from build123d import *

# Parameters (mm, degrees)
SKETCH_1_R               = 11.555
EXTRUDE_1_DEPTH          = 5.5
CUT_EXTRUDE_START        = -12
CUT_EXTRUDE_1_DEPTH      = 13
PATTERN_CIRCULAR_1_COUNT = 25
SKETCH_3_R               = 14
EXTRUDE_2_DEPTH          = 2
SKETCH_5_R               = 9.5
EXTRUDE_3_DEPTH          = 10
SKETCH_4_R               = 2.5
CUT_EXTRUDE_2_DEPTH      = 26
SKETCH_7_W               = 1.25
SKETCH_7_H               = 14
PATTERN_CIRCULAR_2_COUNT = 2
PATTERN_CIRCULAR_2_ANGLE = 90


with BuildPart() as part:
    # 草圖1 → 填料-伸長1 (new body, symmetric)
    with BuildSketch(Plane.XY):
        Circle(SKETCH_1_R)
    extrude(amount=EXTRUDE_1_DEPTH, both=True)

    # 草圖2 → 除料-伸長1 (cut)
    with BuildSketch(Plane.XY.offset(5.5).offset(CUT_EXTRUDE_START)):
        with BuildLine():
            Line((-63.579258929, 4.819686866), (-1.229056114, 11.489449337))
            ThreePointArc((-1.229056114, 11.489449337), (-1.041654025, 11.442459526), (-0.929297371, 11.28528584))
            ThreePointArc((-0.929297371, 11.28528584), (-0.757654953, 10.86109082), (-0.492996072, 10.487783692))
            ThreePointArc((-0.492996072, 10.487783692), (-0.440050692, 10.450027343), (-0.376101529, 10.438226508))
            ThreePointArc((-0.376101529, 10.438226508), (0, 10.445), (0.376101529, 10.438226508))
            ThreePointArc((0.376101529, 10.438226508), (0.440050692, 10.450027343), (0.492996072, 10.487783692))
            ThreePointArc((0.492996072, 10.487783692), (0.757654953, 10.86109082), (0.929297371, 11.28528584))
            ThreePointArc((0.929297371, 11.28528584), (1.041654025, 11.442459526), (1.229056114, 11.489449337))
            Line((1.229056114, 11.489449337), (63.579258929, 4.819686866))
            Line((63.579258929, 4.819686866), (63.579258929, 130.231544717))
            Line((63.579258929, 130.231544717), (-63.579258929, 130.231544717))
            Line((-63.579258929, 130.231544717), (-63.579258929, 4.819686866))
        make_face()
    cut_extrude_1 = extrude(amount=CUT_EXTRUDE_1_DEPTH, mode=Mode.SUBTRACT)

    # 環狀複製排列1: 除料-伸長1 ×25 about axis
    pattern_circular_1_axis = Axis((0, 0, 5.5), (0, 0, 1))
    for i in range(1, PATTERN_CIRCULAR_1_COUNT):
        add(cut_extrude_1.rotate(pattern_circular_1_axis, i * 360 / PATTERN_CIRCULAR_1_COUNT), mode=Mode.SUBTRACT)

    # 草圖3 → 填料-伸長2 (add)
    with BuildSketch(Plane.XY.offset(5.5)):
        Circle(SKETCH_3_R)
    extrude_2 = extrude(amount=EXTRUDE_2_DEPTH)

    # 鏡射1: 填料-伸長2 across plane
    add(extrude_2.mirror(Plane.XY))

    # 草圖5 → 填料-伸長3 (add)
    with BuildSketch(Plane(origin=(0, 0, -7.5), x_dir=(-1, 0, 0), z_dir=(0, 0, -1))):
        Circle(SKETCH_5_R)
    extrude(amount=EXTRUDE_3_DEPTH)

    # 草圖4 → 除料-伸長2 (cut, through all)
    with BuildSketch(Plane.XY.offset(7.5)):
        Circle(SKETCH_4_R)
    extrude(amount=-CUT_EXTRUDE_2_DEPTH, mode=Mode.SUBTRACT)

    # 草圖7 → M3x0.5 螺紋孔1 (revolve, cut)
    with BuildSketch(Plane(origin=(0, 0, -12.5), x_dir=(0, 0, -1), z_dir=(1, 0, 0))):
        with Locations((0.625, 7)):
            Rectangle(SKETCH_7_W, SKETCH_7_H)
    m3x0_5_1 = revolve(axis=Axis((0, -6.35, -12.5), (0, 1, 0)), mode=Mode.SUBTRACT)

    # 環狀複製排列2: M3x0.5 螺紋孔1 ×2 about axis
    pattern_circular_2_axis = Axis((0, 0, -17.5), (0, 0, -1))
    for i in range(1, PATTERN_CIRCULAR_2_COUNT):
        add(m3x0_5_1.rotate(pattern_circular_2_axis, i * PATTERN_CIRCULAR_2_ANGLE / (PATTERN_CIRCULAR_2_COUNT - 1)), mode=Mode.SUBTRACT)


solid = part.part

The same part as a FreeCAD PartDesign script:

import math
import FreeCAD as App
import Part
import Sketcher

V = App.Vector
Q = App.Units.Quantity

doc = App.newDocument("Part")
body = doc.addObject("PartDesign::Body", "Body")

# Sketch on XY plane
sketch1 = body.newObject("Sketcher::SketchObject", "Sketch")
sketch1.AttachmentSupport = (doc.getObject("XY_Plane"), [""])
sketch1.MapMode = "FlatFace"
sketch1.addGeometry(Part.Circle(V(0, 0, 0), V(0, 0, 1), 11.555), False)
sketch1.addConstraint([
    Sketcher.Constraint("Coincident", 0, 3, -1, 1),
    Sketcher.Constraint("Diameter", 0, Q("23.11 mm")),
])
pad1 = body.newObject("PartDesign::Pad", "Pad")
pad1.Profile = sketch1
pad1.Length = 11
pad1.Midplane = True

# Sketch on XY plane
sketch2 = body.newObject("Sketcher::SketchObject", "Sketch001")
sketch2.AttachmentSupport = (doc.getObject("XY_Plane"), [""])
sketch2.MapMode = "FlatFace"
sketch2.AttachmentOffset = App.Placement(V(0, 0, -6.5), App.Rotation())
sketch2.addGeometry([
    Part.LineSegment(V(-63.579259, 4.819687, 0), V(-1.229056, 11.489449, 0)),  # 0
    Part.ArcOfCircle(Part.Circle(V(-1.199274, 11.211038, 0), V(0, 0, 1), 0.28), math.radians(15.377157), math.radians(96.105858)),  # 1
    Part.ArcOfCircle(Part.Circle(V(0.975, 11.809, 0), V(0, 0, 1), 1.975), math.radians(-164.622843), math.radians(-138.01236)),  # 2
    Part.ArcOfCircle(Part.Circle(V(-0.381503, 10.588129, 0), V(0, 0, 1), 0.15), math.radians(-138.012359), math.radians(-87.93646)),  # 3
    Part.ArcOfCircle(Part.Circle(V(0, 0.000001, 0), V(0, 0, 1), 10.444999), math.radians(87.936459), math.radians(92.063541)),  # 4
    Part.ArcOfCircle(Part.Circle(V(0.381503, 10.588129, 0), V(0, 0, 1), 0.15), math.radians(-92.06354), math.radians(-41.987641)),  # 5
    Part.ArcOfCircle(Part.Circle(V(-0.975, 11.809, 0), V(0, 0, 1), 1.975), math.radians(-41.98764), math.radians(-15.377157)),  # 6
    Part.ArcOfCircle(Part.Circle(V(1.199274, 11.211038, 0), V(0, 0, 1), 0.28), math.radians(83.894142), math.radians(164.622843)),  # 7
    Part.LineSegment(V(1.229056, 11.489449, 0), V(63.579259, 4.819687, 0)),  # 8
    Part.LineSegment(V(63.579259, 4.819687, 0), V(63.579259, 130.231545, 0)),  # 9
    Part.LineSegment(V(63.579259, 130.231545, 0), V(-63.579259, 130.231545, 0)),  # 10
    Part.LineSegment(V(-63.579259, 130.231545, 0), V(-63.579259, 4.819687, 0)),  # 11
], False)
sketch2.addConstraint([
    Sketcher.Constraint("Tangent", 0, 2, 1, 2),
    Sketcher.Constraint("Tangent", 1, 1, 2, 1),
    Sketcher.Constraint("Tangent", 2, 2, 3, 1),
    Sketcher.Constraint("Tangent", 3, 2, 4, 2),
    Sketcher.Constraint("Tangent", 4, 1, 5, 1),
    Sketcher.Constraint("Tangent", 5, 2, 6, 1),
    Sketcher.Constraint("Tangent", 6, 2, 7, 2),
    Sketcher.Constraint("Tangent", 7, 1, 8, 1),
    Sketcher.Constraint("Coincident", 8, 2, 9, 1),
    Sketcher.Constraint("Coincident", 9, 2, 10, 1),
    Sketcher.Constraint("Coincident", 10, 2, 11, 1),
    Sketcher.Constraint("Coincident", 11, 2, 0, 1),
    Sketcher.Constraint("Vertical", 9),
    Sketcher.Constraint("Horizontal", 10),
    Sketcher.Constraint("Vertical", 11),
    Sketcher.Constraint("Coincident", 4, 3, -1, 1),
    Sketcher.Constraint("Equal", 3, 5),
    Sketcher.Constraint("Equal", 2, 6),
    Sketcher.Constraint("Equal", 1, 7),
    Sketcher.Constraint("Symmetric", 2, 3, 6, 3, -2),
    Sketcher.Constraint("Symmetric", 0, 2, 7, 1, -2),
    Sketcher.Constraint("Horizontal", 8, 2, 11, 2),
    Sketcher.Constraint("Radius", 1, Q("0.28 mm")),
    Sketcher.Constraint("Radius", 3, Q("0.15 mm")),
    Sketcher.Constraint("Radius", 2, Q("1.975 mm")),
    Sketcher.Constraint("Radius", 4, Q("10.444999 mm")),
    Sketcher.Constraint("DistanceX", 6, 3, 2, 3, Q("1.95 mm")),
    Sketcher.Constraint("DistanceY", -1, 1, 2, 3, Q("11.809 mm")),
    Sketcher.Constraint("DistanceX", 1, 1, 5, 3, Q("1.3108 mm")),
    Sketcher.Constraint("DistanceY", 8, 2, 6, 2, Q("6.465599 mm")),
    Sketcher.Constraint("Distance", 0, Q("62.705929 mm")),
    Sketcher.Constraint("DistanceY", 9, 1, 9, 2, Q("125.411858 mm")),
])
pocket1 = body.newObject("PartDesign::Pocket", "Pocket")
pocket1.Profile = sketch2
pocket1.Length = 13
pocket1.Reversed = True
doc.recompute()

polarpattern = body.newObject("PartDesign::PolarPattern", "PolarPattern")
polarpattern.Originals = [pocket1]
polarpattern.Axis = (doc.getObject("Z_Axis"), [""])
polarpattern.Angle = 360
polarpattern.Occurrences = 25
body.Tip = polarpattern

# Sketch on XY plane
sketch3 = body.newObject("Sketcher::SketchObject", "Sketch002")
sketch3.AttachmentSupport = (doc.getObject("XY_Plane"), [""])
sketch3.MapMode = "FlatFace"
sketch3.AttachmentOffset = App.Placement(V(0, 0, 5.5), App.Rotation())
sketch3.addGeometry(Part.Circle(V(0, 0, 0), V(0, 0, 1), 14), False)
sketch3.addConstraint([
    Sketcher.Constraint("Coincident", 0, 3, -1, 1),
    Sketcher.Constraint("Diameter", 0, Q("28 mm")),
])
pad2 = body.newObject("PartDesign::Pad", "Pad001")
pad2.Profile = sketch3
pad2.Length = 2
doc.recompute()

mirrored = body.newObject("PartDesign::Mirrored", "Mirrored")
mirrored.Originals = [pad2]
mirrored.MirrorPlane = (doc.getObject("XY_Plane"), [""])
body.Tip = mirrored

# Sketch on XY plane
sketch4 = body.newObject("Sketcher::SketchObject", "Sketch003")
sketch4.AttachmentSupport = (doc.getObject("XY_Plane"), [""])
sketch4.MapMode = "FlatFace"
sketch4.AttachmentOffset = App.Placement(V(0, 0, -7.5), App.Rotation())
sketch4.addGeometry(Part.Circle(V(0, 0, 0), V(0, 0, 1), 9.5), False)
sketch4.addConstraint([
    Sketcher.Constraint("Coincident", 0, 3, -1, 1),
    Sketcher.Constraint("Diameter", 0, Q("19 mm")),
])
pad3 = body.newObject("PartDesign::Pad", "Pad002")
pad3.Profile = sketch4
pad3.Length = 10
pad3.Reversed = True

# Sketch on XY plane
sketch5 = body.newObject("Sketcher::SketchObject", "Sketch004")
sketch5.AttachmentSupport = (doc.getObject("XY_Plane"), [""])
sketch5.MapMode = "FlatFace"
sketch5.AttachmentOffset = App.Placement(V(0, 0, 7.5), App.Rotation())
sketch5.addGeometry(Part.Circle(V(0, 0, 0), V(0, 0, 1), 2.5), False)
sketch5.addConstraint([
    Sketcher.Constraint("Coincident", 0, 3, -1, 1),
    Sketcher.Constraint("Diameter", 0, Q("5 mm")),
])
pocket2 = body.newObject("PartDesign::Pocket", "Pocket001")
pocket2.Profile = sketch5
pocket2.Type = "ThroughAll"

# Sketch on YZ plane
sketch6 = body.newObject("Sketcher::SketchObject", "Sketch005")
sketch6.AttachmentSupport = (doc.getObject("YZ_Plane"), [""])
sketch6.MapMode = "FlatFace"
sketch6.addGeometry([
    Part.LineSegment(V(14, -12.5, 0), V(0, -12.5, 0)),
    Part.LineSegment(V(0, -12.5, 0), V(0, -13.75, 0)),
    Part.LineSegment(V(0, -13.75, 0), V(14, -13.75, 0)),
    Part.LineSegment(V(14, -13.75, 0), V(14, -12.5, 0)),
], False)
sketch6.addGeometry(Part.LineSegment(V(0, -12.5, 0), V(14, -12.5, 0)), True)  # axis
sketch6.addConstraint([
    Sketcher.Constraint("Coincident", 0, 2, 1, 1),
    Sketcher.Constraint("Coincident", 1, 2, 2, 1),
    Sketcher.Constraint("Coincident", 2, 2, 3, 1),
    Sketcher.Constraint("Coincident", 3, 2, 0, 1),
    Sketcher.Constraint("Horizontal", 0),
    Sketcher.Constraint("Vertical", 1),
    Sketcher.Constraint("Horizontal", 2),
    Sketcher.Constraint("Vertical", 3),
    Sketcher.Constraint("Horizontal", 4),
    Sketcher.Constraint("Coincident", 4, 1, 0, 2),
    Sketcher.Constraint("PointOnObject", 0, 2, -2),
    Sketcher.Constraint("Vertical", 2, 2, 4, 2),
    Sketcher.Constraint("DistanceX", 0, 2, 0, 1, Q("14 mm")),
    Sketcher.Constraint("DistanceY", 1, 2, 1, 1, Q("1.25 mm")),
    Sketcher.Constraint("DistanceY", 0, 2, -1, 1, Q("12.5 mm")),
])
groove = body.newObject("PartDesign::Groove", "Groove")
groove.Profile = sketch6
groove.ReferenceAxis = (sketch6, ["Axis0"])
groove.Angle = 360
doc.recompute()

polarpattern2 = body.newObject("PartDesign::PolarPattern", "PolarPattern001")
polarpattern2.Originals = [groove]
polarpattern2.Axis = (doc.getObject("Z_Axis"), [""])
polarpattern2.Angle = 90
polarpattern2.Occurrences = 2
polarpattern2.Reversed = True
body.Tip = polarpattern2

doc.recompute()
